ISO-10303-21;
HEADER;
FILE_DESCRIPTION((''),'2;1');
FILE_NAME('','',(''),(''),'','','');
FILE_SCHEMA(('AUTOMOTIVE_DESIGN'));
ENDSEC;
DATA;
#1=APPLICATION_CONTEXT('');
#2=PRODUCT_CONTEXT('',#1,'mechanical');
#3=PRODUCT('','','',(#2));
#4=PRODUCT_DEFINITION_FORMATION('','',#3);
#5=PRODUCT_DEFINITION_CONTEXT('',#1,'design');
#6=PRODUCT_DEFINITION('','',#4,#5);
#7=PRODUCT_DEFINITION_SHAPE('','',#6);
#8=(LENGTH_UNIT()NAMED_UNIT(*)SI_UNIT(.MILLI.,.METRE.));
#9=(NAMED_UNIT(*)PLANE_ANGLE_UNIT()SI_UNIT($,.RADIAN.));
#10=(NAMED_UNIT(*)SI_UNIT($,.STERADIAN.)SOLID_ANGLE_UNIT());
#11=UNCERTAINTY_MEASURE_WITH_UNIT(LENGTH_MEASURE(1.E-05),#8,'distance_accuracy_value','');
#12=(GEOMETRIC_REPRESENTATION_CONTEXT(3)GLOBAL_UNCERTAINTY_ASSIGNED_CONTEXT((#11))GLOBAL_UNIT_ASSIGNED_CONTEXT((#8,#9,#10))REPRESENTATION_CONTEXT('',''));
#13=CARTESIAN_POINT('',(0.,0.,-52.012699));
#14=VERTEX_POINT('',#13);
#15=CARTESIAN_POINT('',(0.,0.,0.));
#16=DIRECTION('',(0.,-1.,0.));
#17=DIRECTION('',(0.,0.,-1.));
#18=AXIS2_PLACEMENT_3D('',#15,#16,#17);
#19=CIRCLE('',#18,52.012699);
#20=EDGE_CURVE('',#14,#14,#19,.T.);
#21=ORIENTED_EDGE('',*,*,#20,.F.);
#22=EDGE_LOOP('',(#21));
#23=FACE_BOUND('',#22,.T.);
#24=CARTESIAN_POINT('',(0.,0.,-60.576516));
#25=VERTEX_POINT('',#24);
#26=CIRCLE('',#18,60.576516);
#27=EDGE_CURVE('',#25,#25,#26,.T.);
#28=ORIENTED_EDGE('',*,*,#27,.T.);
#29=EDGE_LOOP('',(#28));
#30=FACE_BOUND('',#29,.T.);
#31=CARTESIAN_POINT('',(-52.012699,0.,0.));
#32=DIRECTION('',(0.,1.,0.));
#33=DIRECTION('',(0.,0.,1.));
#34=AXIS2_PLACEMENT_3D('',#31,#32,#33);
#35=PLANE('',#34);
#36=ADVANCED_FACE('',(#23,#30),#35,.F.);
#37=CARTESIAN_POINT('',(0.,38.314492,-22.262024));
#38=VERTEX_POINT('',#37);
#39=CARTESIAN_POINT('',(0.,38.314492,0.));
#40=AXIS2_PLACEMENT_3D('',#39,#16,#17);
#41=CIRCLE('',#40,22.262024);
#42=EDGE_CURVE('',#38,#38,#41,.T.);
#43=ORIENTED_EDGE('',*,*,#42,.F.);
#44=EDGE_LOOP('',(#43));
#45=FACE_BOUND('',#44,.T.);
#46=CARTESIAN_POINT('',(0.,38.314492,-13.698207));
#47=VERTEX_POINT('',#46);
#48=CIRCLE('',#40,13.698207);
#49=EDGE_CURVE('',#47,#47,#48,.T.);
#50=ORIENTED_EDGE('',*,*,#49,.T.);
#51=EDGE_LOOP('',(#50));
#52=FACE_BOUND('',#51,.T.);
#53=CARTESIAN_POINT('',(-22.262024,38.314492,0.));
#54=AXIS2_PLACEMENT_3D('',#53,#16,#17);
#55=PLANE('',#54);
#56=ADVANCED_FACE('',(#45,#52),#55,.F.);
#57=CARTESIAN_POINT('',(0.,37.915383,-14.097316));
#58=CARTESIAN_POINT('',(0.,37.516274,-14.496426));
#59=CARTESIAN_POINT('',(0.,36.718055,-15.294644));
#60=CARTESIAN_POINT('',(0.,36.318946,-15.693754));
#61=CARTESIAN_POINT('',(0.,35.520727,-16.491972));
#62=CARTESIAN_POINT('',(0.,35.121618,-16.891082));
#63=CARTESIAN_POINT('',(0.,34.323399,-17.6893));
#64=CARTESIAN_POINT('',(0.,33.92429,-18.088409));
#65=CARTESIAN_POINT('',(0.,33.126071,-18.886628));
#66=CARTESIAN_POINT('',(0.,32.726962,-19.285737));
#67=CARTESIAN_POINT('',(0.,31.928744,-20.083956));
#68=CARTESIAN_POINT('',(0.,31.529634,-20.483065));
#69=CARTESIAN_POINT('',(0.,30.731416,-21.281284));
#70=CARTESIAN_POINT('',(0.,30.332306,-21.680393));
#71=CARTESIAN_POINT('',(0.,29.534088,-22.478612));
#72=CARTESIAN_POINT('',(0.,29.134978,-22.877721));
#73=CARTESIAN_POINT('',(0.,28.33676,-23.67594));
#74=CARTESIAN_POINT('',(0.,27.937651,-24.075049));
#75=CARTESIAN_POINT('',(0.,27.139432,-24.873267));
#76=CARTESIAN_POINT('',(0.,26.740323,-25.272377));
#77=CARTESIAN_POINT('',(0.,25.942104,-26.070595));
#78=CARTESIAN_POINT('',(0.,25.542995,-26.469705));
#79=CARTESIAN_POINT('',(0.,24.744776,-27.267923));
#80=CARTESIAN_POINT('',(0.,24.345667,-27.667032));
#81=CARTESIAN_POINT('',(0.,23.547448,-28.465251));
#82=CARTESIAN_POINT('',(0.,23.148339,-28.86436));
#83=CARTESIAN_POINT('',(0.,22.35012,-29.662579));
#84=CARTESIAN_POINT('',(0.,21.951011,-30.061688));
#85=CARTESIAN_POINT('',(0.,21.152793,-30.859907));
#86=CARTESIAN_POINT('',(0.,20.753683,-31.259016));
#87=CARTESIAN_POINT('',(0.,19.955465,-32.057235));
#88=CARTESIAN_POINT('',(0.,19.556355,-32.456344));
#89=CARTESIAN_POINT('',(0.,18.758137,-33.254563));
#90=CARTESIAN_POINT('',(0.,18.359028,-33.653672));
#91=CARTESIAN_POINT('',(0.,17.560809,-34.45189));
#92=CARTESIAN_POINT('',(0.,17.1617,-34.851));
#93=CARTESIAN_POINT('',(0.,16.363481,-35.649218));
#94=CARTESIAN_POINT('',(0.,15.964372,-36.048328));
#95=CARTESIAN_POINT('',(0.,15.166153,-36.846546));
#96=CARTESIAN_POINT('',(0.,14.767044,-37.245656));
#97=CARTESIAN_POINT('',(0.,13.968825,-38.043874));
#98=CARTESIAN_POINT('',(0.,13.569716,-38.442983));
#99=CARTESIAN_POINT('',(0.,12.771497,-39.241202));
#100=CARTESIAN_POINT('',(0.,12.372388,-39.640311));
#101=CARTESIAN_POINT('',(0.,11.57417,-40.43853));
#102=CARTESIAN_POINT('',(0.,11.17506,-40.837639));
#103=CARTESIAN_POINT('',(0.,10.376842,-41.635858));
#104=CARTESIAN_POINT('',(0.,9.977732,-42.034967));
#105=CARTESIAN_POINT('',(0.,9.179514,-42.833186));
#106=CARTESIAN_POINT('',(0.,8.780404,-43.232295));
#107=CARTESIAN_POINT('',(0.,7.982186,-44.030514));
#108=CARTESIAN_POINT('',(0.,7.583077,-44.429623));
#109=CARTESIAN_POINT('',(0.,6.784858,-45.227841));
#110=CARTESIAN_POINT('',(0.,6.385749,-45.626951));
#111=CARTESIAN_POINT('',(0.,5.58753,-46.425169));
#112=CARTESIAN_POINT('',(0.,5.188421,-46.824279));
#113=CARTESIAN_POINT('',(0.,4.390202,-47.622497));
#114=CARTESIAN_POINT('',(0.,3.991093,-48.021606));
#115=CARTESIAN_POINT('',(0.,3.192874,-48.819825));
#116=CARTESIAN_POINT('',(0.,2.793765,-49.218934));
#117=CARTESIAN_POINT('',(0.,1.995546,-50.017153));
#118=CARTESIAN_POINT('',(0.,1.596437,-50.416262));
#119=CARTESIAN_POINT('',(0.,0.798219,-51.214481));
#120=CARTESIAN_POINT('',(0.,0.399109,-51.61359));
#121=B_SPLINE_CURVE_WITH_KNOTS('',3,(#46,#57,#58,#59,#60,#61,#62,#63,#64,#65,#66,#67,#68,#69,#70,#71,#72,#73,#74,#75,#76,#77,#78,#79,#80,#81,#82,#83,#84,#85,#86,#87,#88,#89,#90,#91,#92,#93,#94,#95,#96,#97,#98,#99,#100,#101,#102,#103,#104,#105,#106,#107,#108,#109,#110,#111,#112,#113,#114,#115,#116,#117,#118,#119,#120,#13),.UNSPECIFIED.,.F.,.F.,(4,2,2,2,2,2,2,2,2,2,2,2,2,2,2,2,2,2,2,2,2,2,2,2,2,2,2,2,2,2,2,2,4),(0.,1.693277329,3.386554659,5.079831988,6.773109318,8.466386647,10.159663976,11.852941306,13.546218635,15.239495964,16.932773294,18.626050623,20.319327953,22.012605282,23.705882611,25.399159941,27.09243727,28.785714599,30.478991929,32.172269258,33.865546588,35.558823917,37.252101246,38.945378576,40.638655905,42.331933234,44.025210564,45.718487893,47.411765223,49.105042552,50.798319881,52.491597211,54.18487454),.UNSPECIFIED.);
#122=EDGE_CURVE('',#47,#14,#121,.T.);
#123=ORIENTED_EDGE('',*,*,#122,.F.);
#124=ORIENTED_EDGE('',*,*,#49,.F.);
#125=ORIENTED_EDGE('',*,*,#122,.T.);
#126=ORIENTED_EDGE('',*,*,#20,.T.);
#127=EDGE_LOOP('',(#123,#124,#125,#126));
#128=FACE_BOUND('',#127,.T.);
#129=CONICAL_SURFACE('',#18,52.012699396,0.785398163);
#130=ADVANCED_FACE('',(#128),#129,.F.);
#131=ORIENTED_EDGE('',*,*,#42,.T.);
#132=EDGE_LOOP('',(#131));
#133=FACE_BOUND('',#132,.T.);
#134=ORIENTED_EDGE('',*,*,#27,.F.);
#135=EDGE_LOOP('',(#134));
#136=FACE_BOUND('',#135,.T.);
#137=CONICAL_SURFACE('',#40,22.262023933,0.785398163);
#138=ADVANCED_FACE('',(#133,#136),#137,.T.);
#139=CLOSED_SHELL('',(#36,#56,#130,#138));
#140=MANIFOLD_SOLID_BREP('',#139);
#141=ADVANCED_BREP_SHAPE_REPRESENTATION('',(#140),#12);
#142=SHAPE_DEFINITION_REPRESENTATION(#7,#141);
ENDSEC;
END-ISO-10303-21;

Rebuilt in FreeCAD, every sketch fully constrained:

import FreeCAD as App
import Part
import Sketcher

V = App.Vector
Q = App.Units.Quantity

doc = App.newDocument("Part")
body = doc.addObject("PartDesign::Body", "Body")

sketch1 = body.newObject("Sketcher::SketchObject", "Sketch")
sketch1.AttachmentSupport = (doc.getObject("XY_Plane"), [""])
sketch1.MapMode = "FlatFace"
sketch1.addGeometry([
    Part.LineSegment(V(-22, 38, 0), V(-61, 0, 0)),
    Part.LineSegment(V(-61, 0, 0), V(-52, 0, 0)),
    Part.LineSegment(V(-52, 0, 0), V(-14, 38, 0)),
    Part.LineSegment(V(-14, 38, 0), V(-22, 38, 0)),
], False)
sketch1.addConstraint([
    Sketcher.Constraint("Coincident", 0, 2, 1, 1),
    Sketcher.Constraint("Coincident", 1, 2, 2, 1),
    Sketcher.Constraint("Coincident", 2, 2, 3, 1),
    Sketcher.Constraint("Coincident", 3, 2, 0, 1),
    Sketcher.Constraint("Horizontal", 1),
    Sketcher.Constraint("Horizontal", 3),
    Sketcher.Constraint("PointOnObject", 0, 2, -1),
    Sketcher.Constraint("Parallel", 0, 2),
    Sketcher.Constraint("Angle", 0, Q("-135 deg")),
    Sketcher.Constraint("DistanceX", 1, 2, -1, 1, Q("52.012699 mm")),
    Sketcher.Constraint("DistanceX", 1, 1, 1, 2, Q("8.563817 mm")),
    Sketcher.Constraint("DistanceX", 0, 2, 2, 2, Q("46.878309 mm")),
])
revolution = body.newObject("PartDesign::Revolution", "Revolution")
revolution.Profile = sketch1
revolution.ReferenceAxis = (sketch1, ["V_Axis"])
revolution.Angle = 360

doc.recompute()
